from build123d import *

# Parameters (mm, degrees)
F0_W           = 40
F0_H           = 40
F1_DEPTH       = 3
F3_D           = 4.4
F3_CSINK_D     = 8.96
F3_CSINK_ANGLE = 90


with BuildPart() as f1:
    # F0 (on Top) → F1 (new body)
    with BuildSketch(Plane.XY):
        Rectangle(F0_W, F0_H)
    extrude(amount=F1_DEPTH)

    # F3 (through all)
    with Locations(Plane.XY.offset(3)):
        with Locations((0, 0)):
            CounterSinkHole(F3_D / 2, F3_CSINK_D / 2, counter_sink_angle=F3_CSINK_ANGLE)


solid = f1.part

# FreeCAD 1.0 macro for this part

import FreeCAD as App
import Part
import Sketcher

doc = App.newDocument("Part")
body = doc.addObject("PartDesign::Body", "Body")

# Sketch on XY plane
sketch1 = body.newObject("Sketcher::SketchObject", "Sketch")
sketch1.AttachmentSupport = (doc.getObject("XY_Plane"), [""])
sketch1.MapMode = "FlatFace"
sketch1.addGeometry(Part.LineSegment(App.Vector(-20, 20, 0), App.Vector(-20, -20, 0)), False)
sketch1.addGeometry(Part.LineSegment(App.Vector(-20, -20, 0), App.Vector(20, -20, 0)), False)
sketch1.addGeometry(Part.LineSegment(App.Vector(20, -20, 0), App.Vector(20, 20, 0)), False)
sketch1.addGeometry(Part.LineSegment(App.Vector(20, 20, 0), App.Vector(-20, 20, 0)), False)
sketch1.addConstraint(Sketcher.Constraint("Coincident", 0, 2, 1, 1))
sketch1.addConstraint(Sketcher.Constraint("Coincident", 1, 2, 2, 1))
sketch1.addConstraint(Sketcher.Constraint("Coincident", 2, 2, 3, 1))
sketch1.addConstraint(Sketcher.Constraint("Coincident", 3, 2, 0, 1))
sketch1.addConstraint(Sketcher.Constraint("Vertical", 0))
sketch1.addConstraint(Sketcher.Constraint("Horizontal", 1))
sketch1.addConstraint(Sketcher.Constraint("Vertical", 2))
sketch1.addConstraint(Sketcher.Constraint("Horizontal", 3))
sketch1.addConstraint(Sketcher.Constraint("Symmetric", 0, 2, 2, 2, -1, 1))
sketch1.addConstraint(Sketcher.Constraint("Equal", 3, 0))
sketch1.addConstraint(Sketcher.Constraint("DistanceX", 1, 1, 1, 2, 40.0))
pad1 = body.newObject("PartDesign::Pad", "Pad")
pad1.Profile = sketch1
pad1.Length = 3

# Sketch on XY plane
sketch2 = body.newObject("Sketcher::SketchObject", "Sketch001")
sketch2.AttachmentSupport = (doc.getObject("XY_Plane"), [""])
sketch2.MapMode = "FlatFace"
sketch2.AttachmentOffset = App.Placement(App.Vector(0, 0, 3), App.Rotation())
sketch2.addGeometry(Part.Circle(App.Vector(0, 0, 0), App.Vector(0, 0, 1), 2.2), False)
sketch2.addConstraint(Sketcher.Constraint("Coincident", 0, 3, -1, 1))
sketch2.addConstraint(Sketcher.Constraint("Diameter", 0, 4.4))
doc.recompute()
hole = body.newObject("PartDesign::Hole", "Hole")
hole.Profile = sketch2
hole.ThreadType = "None"
hole.Diameter = 4.4
hole.DepthType = "ThroughAll"
hole.HoleCutType = "Countersink"
hole.HoleCutDiameter = 8.96
hole.HoleCutCountersinkAngle = 90

doc.recompute()
